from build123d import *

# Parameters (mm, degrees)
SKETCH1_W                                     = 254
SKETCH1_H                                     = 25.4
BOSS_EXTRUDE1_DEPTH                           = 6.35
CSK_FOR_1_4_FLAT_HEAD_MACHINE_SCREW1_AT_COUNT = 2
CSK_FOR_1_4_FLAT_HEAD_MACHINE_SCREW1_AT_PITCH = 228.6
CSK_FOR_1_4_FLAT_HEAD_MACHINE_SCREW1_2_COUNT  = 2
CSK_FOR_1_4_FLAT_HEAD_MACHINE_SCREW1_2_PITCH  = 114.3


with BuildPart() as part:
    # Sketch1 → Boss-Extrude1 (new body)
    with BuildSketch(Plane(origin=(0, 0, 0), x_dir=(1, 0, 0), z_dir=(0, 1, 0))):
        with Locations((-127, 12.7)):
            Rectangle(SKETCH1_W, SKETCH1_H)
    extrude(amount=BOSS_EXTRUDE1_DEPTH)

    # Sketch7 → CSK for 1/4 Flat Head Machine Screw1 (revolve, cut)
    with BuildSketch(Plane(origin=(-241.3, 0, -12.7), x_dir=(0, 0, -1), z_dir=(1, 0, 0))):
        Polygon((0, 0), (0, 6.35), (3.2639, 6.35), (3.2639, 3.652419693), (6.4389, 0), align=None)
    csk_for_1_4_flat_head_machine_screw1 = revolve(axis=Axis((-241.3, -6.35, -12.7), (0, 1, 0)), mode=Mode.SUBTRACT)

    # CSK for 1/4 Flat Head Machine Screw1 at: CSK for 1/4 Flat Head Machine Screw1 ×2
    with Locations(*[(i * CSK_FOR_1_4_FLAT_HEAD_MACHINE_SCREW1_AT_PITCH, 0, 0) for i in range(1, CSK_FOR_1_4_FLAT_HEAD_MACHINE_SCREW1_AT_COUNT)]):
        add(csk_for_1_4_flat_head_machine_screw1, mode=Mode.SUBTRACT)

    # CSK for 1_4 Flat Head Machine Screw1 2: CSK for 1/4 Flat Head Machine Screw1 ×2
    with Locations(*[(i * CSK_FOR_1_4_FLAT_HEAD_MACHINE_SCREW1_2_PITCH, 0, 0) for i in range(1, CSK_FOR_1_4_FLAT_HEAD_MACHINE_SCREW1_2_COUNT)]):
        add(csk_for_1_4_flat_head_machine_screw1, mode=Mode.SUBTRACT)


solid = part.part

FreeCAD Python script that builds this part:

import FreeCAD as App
import Part
import Sketcher

V = App.Vector
Q = App.Units.Quantity


def add_polygon(sketch, points):
    """Adds a closed chain of lines whose ends are joined by coincident constraints."""
    first, n = sketch.GeometryCount, len(points)
    for a, b in zip(points, points[1:] + points[:1]):
        sketch.addGeometry(Part.LineSegment(App.Vector(*a, 0), App.Vector(*b, 0)), False)
    for i in range(n):
        sketch.addConstraint(Sketcher.Constraint("Coincident", first + i, 2, first + (i + 1) % n, 1))

doc = App.newDocument("Part")
body = doc.addObject("PartDesign::Body", "Body")

# Sketch on XZ plane
sketch1 = body.newObject("Sketcher::SketchObject", "Sketch")
sketch1.AttachmentSupport = (doc.getObject("XZ_Plane"), [""])
sketch1.MapMode = "FlatFace"
add_polygon(sketch1, [(-254, -25), (-254, 0), (0, 0), (0, -25)])  # lines 0-3
sketch1.addConstraint(Sketcher.Constraint("Vertical", 0))
sketch1.addConstraint(Sketcher.Constraint("Horizontal", 1))
sketch1.addConstraint(Sketcher.Constraint("Vertical", 2))
sketch1.addConstraint(Sketcher.Constraint("Horizontal", 3))
sketch1.addConstraint(Sketcher.Constraint("Coincident", 1, 2, -1, 1))
sketch1.addConstraint(Sketcher.Constraint("DistanceX", 1, 1, 1, 2, Q("10 in")))
sketch1.addConstraint(Sketcher.Constraint("DistanceY", 0, 1, 0, 2, Q("1 in")))
pad1 = body.newObject("PartDesign::Pad", "Pad")
pad1.Profile = sketch1
pad1.Length = Q("0.25 in")
pad1.Reversed = True

# Sketch on YZ plane
sketch2 = body.newObject("Sketcher::SketchObject", "Sketch001")
sketch2.AttachmentSupport = (doc.getObject("YZ_Plane"), [""])
sketch2.MapMode = "FlatFace"
sketch2.AttachmentOffset = App.Placement(V(0, 0, -9.5 * 25.4), App.Rotation())
add_polygon(sketch2, [(6.3, -12.7), (0, -12.7), (0, -19.1), (3.7, -16), (6.3, -16)])  # lines 0-4
sketch2.addGeometry(Part.LineSegment(V(0, -12.7, 0), V(6.3, -12.7, 0)), True)  # axis
sketch2.addConstraint(Sketcher.Constraint("Horizontal", 0))
sketch2.addConstraint(Sketcher.Constraint("Vertical", 1))
sketch2.addConstraint(Sketcher.Constraint("Horizontal", 3))
sketch2.addConstraint(Sketcher.Constraint("Vertical", 4))
sketch2.addConstraint(Sketcher.Constraint("Horizontal", 5))
sketch2.addConstraint(Sketcher.Constraint("Coincident", 5, 1, 0, 2))
sketch2.addConstraint(Sketcher.Constraint("PointOnObject", 0, 2, -2))
sketch2.addConstraint(Sketcher.Constraint("Vertical", 3, 2, 5, 2))
sketch2.addConstraint(Sketcher.Constraint("Angle", 2, Q("41 deg")))
sketch2.addConstraint(Sketcher.Constraint("DistanceX", 0, 2, 0, 1, Q("0.25 in")))
sketch2.addConstraint(Sketcher.Constraint("DistanceY", 0, 2, -1, 1, Q("0.5 in")))
sketch2.addConstraint(Sketcher.Constraint("DistanceY", 1, 2, 1, 1, Q("0.2535 in")))
sketch2.addConstraint(Sketcher.Constraint("DistanceY", 4, 1, 4, 2, Q("0.1285 in")))
groove = body.newObject("PartDesign::Groove", "Groove")
groove.Profile = sketch2
groove.ReferenceAxis = (sketch2, ["Axis0"])
groove.Angle = 360
doc.recompute()

linearpattern = body.newObject("PartDesign::LinearPattern", "LinearPattern")
linearpattern.Originals = [groove]
linearpattern.Direction = (doc.getObject("X_Axis"), [""])
linearpattern.Mode = "offset"
linearpattern.Offset = Q("9 in")
linearpattern.Occurrences = 2
body.Tip = linearpattern
doc.recompute()

linearpattern2 = body.newObject("PartDesign::LinearPattern", "LinearPattern001")
linearpattern2.Originals = [groove]
linearpattern2.Direction = (doc.getObject("X_Axis"), [""])
linearpattern2.Mode = "offset"
linearpattern2.Offset = Q("4.5 in")
linearpattern2.Occurrences = 2
body.Tip = linearpattern2

doc.recompute()
